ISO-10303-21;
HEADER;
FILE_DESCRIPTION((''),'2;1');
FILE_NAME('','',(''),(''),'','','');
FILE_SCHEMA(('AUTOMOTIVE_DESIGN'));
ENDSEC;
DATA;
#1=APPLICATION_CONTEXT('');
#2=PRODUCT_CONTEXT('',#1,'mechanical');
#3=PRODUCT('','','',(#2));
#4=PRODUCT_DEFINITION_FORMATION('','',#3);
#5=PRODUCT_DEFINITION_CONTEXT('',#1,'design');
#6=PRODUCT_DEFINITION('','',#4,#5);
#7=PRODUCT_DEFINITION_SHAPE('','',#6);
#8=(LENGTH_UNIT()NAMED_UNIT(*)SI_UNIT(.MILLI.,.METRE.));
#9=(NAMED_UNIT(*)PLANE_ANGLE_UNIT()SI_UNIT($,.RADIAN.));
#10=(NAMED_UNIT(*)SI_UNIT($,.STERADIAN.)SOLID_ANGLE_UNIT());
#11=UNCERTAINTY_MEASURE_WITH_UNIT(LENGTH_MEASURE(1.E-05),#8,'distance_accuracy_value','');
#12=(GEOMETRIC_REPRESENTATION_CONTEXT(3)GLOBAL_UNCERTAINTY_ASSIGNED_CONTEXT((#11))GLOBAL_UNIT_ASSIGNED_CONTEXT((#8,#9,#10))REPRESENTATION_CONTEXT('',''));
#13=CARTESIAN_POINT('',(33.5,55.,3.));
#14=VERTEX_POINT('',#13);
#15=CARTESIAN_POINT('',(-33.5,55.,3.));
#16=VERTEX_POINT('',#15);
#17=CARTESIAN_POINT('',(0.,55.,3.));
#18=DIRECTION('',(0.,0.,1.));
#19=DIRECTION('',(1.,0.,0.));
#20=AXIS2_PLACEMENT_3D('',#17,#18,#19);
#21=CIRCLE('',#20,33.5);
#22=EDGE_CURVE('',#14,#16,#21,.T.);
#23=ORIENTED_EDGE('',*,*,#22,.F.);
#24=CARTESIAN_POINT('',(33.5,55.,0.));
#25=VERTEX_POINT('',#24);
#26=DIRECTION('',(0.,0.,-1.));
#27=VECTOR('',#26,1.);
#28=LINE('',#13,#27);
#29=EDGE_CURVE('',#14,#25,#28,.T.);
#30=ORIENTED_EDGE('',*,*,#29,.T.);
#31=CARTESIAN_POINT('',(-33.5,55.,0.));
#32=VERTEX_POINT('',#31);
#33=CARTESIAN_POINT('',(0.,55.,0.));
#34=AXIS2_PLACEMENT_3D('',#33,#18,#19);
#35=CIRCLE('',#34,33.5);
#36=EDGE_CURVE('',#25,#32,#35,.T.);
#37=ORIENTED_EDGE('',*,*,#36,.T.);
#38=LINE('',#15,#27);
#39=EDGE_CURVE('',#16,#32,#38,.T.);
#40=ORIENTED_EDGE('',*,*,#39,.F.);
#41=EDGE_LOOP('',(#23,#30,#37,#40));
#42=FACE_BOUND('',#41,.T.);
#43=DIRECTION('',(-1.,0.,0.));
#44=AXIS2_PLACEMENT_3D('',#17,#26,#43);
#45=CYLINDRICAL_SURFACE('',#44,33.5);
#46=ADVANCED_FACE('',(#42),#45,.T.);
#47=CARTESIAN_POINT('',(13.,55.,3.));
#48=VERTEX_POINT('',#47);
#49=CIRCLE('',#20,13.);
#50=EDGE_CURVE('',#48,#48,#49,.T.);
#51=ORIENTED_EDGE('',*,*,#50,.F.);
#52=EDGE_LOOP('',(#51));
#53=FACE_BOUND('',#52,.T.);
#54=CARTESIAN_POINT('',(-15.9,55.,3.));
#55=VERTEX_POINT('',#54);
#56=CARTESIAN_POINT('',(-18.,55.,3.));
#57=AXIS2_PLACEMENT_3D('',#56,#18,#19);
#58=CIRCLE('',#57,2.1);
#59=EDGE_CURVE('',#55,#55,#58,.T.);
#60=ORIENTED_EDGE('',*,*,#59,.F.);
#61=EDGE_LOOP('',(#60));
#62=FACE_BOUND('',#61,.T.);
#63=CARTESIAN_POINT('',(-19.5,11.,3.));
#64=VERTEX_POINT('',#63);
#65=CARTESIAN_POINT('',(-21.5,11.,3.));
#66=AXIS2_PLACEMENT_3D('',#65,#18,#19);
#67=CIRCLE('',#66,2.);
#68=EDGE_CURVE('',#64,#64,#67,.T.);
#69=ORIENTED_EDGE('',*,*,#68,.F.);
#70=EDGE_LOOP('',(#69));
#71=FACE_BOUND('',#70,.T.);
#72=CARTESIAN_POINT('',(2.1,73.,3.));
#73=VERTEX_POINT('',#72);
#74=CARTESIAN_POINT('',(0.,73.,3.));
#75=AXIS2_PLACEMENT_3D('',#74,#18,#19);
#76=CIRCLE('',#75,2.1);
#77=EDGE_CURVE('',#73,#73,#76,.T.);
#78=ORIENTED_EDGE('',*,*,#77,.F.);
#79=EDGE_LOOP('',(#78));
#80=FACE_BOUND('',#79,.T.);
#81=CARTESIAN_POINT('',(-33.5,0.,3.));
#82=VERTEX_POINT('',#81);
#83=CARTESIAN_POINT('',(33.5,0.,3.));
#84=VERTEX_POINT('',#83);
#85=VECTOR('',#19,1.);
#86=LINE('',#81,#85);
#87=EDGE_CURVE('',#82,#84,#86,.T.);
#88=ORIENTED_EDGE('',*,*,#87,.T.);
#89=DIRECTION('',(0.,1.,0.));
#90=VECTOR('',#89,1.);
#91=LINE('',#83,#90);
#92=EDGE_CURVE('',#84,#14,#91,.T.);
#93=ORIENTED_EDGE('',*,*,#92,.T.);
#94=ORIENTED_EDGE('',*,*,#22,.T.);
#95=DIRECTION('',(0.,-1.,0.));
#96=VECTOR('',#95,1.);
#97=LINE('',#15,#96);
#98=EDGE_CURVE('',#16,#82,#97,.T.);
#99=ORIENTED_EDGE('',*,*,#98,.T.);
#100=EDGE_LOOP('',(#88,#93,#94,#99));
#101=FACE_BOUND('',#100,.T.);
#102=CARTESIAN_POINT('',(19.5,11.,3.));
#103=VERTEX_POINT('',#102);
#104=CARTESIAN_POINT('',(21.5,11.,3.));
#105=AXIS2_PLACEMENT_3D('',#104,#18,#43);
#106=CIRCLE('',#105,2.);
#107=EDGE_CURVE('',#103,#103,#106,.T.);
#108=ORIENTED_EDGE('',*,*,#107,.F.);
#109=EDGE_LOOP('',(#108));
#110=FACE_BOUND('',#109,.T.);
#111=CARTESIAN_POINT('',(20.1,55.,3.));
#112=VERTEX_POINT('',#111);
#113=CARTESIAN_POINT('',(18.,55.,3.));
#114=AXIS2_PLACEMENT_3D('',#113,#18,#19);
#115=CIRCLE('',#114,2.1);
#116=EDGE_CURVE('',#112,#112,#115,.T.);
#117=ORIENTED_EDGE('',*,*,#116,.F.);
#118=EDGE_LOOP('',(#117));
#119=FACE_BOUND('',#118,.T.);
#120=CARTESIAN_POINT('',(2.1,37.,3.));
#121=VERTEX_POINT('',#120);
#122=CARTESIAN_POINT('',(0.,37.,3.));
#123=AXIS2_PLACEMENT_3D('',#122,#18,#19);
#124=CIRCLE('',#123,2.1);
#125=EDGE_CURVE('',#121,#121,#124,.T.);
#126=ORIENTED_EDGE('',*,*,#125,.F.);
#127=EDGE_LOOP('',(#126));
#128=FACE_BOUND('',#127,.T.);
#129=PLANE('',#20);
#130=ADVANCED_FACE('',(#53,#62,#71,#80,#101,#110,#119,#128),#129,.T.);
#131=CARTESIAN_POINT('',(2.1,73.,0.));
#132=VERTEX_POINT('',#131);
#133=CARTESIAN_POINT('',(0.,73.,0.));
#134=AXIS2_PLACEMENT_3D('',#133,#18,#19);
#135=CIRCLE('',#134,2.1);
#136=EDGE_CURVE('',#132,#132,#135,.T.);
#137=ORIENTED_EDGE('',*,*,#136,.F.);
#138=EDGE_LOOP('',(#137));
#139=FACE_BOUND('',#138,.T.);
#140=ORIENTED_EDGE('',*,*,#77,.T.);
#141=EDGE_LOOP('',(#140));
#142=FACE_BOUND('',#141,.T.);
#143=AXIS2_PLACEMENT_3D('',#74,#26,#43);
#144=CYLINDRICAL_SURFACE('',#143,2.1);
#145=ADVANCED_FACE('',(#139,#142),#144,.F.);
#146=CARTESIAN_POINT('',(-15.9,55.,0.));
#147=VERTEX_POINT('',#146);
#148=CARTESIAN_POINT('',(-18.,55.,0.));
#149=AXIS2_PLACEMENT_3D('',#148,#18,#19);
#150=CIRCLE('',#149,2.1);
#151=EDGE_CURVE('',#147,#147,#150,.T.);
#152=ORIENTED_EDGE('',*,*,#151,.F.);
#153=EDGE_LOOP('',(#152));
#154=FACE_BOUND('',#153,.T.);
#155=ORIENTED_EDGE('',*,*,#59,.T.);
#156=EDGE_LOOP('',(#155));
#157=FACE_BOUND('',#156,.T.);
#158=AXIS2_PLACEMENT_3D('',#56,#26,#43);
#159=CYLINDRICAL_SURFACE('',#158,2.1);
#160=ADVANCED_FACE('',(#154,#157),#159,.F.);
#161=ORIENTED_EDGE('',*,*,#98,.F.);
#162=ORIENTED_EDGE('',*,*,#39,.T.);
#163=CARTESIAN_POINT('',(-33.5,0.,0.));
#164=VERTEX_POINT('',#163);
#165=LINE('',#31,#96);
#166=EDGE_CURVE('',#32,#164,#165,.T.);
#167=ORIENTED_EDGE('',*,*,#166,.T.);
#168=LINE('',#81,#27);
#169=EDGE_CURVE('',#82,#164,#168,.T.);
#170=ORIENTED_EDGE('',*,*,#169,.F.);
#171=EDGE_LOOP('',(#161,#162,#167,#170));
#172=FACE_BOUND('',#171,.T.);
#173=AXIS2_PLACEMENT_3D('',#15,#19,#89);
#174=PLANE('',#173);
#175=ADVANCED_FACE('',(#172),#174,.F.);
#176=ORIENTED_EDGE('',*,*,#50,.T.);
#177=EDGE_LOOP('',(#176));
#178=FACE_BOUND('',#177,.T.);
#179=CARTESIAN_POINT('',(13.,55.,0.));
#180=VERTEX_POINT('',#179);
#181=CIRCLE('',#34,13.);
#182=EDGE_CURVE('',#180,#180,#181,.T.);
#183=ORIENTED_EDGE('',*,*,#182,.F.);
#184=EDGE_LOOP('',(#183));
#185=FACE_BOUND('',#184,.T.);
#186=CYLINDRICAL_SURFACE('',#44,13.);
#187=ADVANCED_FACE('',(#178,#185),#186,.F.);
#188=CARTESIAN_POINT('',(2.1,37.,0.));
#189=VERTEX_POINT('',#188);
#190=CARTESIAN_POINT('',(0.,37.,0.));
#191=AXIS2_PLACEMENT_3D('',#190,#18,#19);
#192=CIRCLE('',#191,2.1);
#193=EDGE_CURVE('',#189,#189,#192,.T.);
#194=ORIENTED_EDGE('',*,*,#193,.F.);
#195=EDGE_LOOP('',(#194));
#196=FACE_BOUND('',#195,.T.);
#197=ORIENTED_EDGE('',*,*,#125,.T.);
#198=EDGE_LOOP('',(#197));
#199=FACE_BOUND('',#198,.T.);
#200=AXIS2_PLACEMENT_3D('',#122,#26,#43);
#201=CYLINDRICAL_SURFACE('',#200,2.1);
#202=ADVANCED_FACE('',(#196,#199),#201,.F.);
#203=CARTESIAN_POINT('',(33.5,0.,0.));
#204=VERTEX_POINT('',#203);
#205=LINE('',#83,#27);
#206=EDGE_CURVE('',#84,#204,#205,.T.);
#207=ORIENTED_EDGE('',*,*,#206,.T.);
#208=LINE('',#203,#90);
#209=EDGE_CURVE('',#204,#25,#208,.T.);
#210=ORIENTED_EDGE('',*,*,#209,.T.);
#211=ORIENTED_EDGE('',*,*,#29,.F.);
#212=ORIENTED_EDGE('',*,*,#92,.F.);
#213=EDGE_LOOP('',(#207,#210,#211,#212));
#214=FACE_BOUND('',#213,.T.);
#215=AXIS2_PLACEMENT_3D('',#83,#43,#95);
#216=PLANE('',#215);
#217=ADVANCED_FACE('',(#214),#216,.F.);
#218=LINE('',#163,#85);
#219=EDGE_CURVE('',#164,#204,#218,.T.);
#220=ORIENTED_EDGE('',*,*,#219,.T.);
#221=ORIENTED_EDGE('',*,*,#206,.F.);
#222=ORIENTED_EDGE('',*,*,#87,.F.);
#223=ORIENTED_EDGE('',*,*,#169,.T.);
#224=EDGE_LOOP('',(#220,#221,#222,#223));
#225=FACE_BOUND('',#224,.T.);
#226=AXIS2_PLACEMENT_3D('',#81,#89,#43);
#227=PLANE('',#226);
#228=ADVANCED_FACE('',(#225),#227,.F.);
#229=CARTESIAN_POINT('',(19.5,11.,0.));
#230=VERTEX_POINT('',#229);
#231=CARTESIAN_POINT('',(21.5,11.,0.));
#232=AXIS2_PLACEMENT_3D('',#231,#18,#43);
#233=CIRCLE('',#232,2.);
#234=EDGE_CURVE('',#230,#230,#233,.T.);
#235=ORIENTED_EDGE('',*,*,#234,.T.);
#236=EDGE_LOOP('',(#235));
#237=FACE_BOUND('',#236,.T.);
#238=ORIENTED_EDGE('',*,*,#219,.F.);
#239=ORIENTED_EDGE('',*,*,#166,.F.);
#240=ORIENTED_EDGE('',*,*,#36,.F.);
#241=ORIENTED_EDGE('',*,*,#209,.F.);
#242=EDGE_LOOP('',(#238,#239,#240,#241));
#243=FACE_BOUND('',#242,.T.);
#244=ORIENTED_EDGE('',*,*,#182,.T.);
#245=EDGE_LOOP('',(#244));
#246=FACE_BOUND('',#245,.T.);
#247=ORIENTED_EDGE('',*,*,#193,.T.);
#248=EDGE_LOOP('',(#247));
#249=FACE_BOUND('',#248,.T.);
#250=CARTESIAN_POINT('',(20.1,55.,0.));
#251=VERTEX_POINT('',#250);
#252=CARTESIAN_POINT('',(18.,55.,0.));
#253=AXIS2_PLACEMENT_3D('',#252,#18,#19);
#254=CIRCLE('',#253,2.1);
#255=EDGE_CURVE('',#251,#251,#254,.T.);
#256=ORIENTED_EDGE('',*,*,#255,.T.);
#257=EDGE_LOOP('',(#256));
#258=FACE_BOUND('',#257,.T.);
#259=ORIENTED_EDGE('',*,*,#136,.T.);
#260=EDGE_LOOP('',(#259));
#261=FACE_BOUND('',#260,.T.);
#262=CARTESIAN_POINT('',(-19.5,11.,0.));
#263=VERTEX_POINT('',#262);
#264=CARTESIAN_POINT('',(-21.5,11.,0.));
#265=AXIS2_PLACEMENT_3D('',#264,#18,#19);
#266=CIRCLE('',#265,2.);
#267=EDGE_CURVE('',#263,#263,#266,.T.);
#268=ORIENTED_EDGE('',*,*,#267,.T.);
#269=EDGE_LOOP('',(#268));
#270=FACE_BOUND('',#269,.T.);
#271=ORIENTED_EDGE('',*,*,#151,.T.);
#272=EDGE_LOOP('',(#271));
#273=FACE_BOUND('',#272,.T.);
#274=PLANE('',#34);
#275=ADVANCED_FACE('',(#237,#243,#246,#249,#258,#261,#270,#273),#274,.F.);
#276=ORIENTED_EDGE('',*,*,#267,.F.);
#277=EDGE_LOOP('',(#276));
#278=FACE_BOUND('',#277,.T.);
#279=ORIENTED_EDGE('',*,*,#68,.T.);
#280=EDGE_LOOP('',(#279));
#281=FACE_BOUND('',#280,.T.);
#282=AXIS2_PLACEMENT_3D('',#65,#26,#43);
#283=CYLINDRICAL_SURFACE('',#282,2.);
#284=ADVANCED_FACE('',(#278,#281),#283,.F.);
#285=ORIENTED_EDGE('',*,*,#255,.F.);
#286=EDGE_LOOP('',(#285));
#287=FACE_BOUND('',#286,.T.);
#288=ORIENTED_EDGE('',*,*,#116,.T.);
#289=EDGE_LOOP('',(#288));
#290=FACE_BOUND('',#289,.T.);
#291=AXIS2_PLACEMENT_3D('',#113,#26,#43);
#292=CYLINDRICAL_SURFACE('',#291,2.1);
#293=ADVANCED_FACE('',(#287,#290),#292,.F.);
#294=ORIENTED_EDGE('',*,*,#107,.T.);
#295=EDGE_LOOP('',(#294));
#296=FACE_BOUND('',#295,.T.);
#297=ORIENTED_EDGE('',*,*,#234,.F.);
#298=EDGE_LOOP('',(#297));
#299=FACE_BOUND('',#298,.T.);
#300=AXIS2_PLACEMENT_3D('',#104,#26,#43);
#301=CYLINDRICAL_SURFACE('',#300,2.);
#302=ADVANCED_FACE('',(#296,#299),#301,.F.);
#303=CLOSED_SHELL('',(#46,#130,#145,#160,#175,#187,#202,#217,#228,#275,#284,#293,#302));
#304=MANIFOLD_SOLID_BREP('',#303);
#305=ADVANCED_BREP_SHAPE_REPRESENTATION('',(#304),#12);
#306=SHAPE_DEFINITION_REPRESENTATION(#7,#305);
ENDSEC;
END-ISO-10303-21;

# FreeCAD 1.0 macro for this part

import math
import FreeCAD as App
import Part
import Sketcher
from FreeCAD import Vector

doc = App.newDocument("Part")
body = doc.addObject("PartDesign::Body", "Body")

# Sketch on XY plane
sketch1 = body.newObject("Sketcher::SketchObject", "Sketch")
sketch1.AttachmentSupport = (doc.getObject("XY_Plane"), [""])
sketch1.MapMode = "FlatFace"
sketch1.addGeometry(Part.LineSegment(Vector(-33.5, 0, 0), Vector(33.5, 0, 0)), False)
sketch1.addGeometry(Part.LineSegment(Vector(33.5, 0, 0), Vector(33.5, 55, 0)), False)
sketch1.addGeometry(Part.ArcOfCircle(Part.Circle(Vector(0, 55, 0), Vector(0, 0, 1), 33.5), math.radians(0), math.radians(180)), False)
sketch1.addGeometry(Part.LineSegment(Vector(-33.5, 55, 0), Vector(-33.5, 0, 0)), False)
sketch1.addGeometry(Part.Circle(Vector(-21.5, 11, 0), Vector(0, 0, 1), 2), False)
sketch1.addGeometry(Part.Circle(Vector(21.5, 11, 0), Vector(0, 0, 1), 2), False)
sketch1.addGeometry(Part.Circle(Vector(0, 37, 0), Vector(0, 0, 1), 2.1), False)
sketch1.addGeometry(Part.Circle(Vector(-18, 55, 0), Vector(0, 0, 1), 2.1), False)
sketch1.addGeometry(Part.Circle(Vector(0, 55, 0), Vector(0, 0, 1), 13), False)
sketch1.addGeometry(Part.Circle(Vector(18, 55, 0), Vector(0, 0, 1), 2.1), False)
sketch1.addGeometry(Part.Circle(Vector(0, 73, 0), Vector(0, 0, 1), 2.1), False)
sketch1.addConstraint(Sketcher.Constraint("Coincident", 0, 2, 1, 1))
sketch1.addConstraint(Sketcher.Constraint("Tangent", 1, 2, 2, 1))
sketch1.addConstraint(Sketcher.Constraint("Tangent", 2, 2, 3, 1))
sketch1.addConstraint(Sketcher.Constraint("Coincident", 3, 2, 0, 1))
sketch1.addConstraint(Sketcher.Constraint("Horizontal", 0))
sketch1.addConstraint(Sketcher.Constraint("Vertical", 1))
sketch1.addConstraint(Sketcher.Constraint("Vertical", 3))
sketch1.addConstraint(Sketcher.Constraint("Coincident", 8, 3, 2, 3))
sketch1.addConstraint(Sketcher.Constraint("Equal", 4, 5))
sketch1.addConstraint(Sketcher.Constraint("Equal", 6, 7))
sketch1.addConstraint(Sketcher.Constraint("Equal", 7, 9))
sketch1.addConstraint(Sketcher.Constraint("Equal", 9, 10))
sketch1.addConstraint(Sketcher.Constraint("Symmetric", 0, 2, 3, 2, -1, 1))
sketch1.addConstraint(Sketcher.Constraint("Symmetric", 4, 3, 5, 3, -2))
sketch1.addConstraint(Sketcher.Constraint("Symmetric", 7, 3, 9, 3, -2))
sketch1.addConstraint(Sketcher.Constraint("PointOnObject", 6, 3, -2))
sketch1.addConstraint(Sketcher.Constraint("PointOnObject", 10, 3, -2))
sketch1.addConstraint(Sketcher.Constraint("Horizontal", 2, 3, 7, 3))
sketch1.addConstraint(Sketcher.Constraint("Diameter", 4, 4.0))
sketch1.addConstraint(Sketcher.Constraint("Diameter", 8, 26.0))
sketch1.addConstraint(Sketcher.Constraint("Diameter", 6, 4.2))
sketch1.addConstraint(Sketcher.Constraint("Radius", 2, 33.5))
sketch1.addConstraint(Sketcher.Constraint("DistanceY", 1, 1, 1, 2, 55.0))
sketch1.addConstraint(Sketcher.Constraint("DistanceY", -1, 1, 4, 3, 11.0))
sketch1.addConstraint(Sketcher.Constraint("DistanceY", -1, 1, 6, 3, 37.0))
sketch1.addConstraint(Sketcher.Constraint("DistanceX", 7, 3, -1, 1, 18.0))
sketch1.addConstraint(Sketcher.Constraint("DistanceY", -1, 1, 10, 3, 73.0))
sketch1.addConstraint(Sketcher.Constraint("DistanceX", 4, 3, 5, 3, 43.0))
pad1 = body.newObject("PartDesign::Pad", "Pad")
pad1.Profile = sketch1
pad1.Length = 3

doc.recompute()
